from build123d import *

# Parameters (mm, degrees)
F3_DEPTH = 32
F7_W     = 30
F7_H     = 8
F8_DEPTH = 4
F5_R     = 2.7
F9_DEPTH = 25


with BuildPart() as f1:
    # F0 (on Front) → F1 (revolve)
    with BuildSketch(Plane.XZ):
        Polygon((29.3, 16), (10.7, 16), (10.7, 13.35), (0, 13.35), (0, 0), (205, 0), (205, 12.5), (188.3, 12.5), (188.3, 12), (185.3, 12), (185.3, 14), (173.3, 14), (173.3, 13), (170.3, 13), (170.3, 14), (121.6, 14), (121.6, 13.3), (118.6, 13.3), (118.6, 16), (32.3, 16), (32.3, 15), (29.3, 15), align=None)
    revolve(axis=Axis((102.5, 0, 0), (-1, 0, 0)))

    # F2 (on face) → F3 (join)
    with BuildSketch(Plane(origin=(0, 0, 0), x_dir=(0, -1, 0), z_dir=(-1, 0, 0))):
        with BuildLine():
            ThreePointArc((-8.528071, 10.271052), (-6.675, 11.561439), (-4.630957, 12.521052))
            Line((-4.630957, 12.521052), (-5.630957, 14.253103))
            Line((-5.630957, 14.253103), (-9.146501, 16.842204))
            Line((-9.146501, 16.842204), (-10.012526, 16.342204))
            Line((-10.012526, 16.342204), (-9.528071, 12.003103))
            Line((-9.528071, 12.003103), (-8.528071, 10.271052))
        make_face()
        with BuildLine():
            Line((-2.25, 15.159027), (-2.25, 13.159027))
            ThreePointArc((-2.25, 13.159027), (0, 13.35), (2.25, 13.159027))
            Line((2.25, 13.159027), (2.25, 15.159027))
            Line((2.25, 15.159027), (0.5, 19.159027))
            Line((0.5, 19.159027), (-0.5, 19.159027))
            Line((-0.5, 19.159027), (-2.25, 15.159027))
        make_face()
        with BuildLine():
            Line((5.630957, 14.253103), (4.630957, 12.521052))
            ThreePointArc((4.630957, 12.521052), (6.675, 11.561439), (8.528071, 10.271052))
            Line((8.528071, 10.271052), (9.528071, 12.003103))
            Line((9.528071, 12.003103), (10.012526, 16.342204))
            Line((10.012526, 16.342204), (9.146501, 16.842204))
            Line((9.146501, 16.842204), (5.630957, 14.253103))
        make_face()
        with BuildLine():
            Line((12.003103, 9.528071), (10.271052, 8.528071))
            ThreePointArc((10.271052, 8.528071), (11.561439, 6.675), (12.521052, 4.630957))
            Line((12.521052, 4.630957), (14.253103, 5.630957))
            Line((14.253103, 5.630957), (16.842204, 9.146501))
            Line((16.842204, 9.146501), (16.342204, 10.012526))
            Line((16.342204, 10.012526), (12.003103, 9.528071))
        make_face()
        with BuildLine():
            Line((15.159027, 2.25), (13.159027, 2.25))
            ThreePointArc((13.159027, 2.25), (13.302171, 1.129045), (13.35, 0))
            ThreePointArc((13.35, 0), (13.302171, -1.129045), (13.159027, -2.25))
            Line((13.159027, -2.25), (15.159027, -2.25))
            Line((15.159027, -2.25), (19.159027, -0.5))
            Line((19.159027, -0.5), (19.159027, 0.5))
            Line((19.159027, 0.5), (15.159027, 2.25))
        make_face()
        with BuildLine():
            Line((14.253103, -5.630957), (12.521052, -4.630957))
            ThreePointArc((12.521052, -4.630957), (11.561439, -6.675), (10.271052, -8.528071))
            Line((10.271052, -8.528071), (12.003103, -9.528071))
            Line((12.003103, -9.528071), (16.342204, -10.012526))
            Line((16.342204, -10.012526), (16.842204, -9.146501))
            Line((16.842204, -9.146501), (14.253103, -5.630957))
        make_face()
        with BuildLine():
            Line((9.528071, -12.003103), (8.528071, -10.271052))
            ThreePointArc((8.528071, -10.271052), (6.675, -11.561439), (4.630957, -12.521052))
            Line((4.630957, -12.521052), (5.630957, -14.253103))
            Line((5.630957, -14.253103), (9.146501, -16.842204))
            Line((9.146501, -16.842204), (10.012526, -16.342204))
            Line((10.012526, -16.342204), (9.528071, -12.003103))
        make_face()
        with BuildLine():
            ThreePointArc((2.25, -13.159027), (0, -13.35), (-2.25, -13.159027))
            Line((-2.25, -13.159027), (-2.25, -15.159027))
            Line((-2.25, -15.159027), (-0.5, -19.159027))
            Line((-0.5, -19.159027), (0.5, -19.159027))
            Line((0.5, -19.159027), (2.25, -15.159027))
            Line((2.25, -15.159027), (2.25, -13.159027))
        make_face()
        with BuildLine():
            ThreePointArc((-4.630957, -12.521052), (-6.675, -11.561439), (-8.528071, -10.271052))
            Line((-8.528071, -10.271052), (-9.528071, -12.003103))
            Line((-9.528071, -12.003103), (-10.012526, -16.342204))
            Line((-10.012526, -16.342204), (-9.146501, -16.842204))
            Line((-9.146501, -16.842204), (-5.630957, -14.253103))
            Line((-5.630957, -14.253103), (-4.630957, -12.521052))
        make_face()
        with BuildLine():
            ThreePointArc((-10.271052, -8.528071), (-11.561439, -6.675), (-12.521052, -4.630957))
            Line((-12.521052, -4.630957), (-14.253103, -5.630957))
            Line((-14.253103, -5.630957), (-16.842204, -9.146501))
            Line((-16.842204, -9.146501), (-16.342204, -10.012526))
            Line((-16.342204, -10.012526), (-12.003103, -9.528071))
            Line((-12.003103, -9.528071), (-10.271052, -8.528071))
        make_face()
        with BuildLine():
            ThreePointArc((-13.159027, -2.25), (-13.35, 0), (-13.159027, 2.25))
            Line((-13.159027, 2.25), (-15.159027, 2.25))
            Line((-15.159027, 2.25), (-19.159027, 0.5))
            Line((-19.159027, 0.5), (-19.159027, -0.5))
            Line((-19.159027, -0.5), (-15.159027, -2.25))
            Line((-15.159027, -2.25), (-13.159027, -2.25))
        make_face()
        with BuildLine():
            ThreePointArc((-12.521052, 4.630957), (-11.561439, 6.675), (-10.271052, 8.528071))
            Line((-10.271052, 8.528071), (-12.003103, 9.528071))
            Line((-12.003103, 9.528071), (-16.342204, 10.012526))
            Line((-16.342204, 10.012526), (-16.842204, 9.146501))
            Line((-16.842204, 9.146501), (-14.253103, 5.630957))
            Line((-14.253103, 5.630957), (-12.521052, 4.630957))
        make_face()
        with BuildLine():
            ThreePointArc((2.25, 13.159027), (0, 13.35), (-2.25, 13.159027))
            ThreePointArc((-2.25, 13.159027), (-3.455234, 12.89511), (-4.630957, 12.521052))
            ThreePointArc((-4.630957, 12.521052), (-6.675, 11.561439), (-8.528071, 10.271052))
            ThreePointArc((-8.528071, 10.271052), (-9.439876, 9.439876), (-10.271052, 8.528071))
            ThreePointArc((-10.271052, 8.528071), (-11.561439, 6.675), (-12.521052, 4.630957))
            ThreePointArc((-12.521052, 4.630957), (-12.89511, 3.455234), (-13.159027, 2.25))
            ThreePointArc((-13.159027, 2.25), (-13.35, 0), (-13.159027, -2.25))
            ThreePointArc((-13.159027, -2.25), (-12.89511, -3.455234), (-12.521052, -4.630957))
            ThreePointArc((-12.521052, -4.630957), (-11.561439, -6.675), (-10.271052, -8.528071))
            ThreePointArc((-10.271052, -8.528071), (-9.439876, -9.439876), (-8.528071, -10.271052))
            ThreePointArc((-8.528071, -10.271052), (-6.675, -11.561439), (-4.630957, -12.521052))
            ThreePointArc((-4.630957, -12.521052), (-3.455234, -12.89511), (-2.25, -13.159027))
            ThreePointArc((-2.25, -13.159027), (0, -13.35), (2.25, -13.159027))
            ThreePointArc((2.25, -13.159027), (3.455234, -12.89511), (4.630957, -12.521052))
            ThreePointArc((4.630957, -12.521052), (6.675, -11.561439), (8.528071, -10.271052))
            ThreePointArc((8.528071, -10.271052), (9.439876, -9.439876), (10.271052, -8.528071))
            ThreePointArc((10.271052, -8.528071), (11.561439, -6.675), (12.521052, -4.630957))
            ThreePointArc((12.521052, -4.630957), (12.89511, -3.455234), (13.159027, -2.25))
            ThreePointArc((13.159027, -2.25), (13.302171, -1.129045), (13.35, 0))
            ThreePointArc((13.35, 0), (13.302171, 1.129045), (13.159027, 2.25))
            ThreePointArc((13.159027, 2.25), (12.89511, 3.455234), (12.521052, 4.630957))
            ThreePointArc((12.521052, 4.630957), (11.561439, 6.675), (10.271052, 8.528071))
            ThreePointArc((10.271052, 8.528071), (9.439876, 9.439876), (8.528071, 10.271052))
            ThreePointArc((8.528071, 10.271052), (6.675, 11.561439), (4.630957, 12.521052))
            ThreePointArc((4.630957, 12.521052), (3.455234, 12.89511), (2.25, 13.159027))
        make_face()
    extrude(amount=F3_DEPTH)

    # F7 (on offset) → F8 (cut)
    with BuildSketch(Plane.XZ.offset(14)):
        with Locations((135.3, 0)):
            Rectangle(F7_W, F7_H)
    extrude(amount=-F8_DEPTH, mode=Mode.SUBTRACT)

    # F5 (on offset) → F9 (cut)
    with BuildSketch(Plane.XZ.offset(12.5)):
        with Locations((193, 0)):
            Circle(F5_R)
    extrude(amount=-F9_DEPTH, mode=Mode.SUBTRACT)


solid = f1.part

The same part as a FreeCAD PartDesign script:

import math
import FreeCAD as App
import Part
import Sketcher
Q = App.Units.Quantity


def add_polygon(sketch, points):
    """Adds a closed chain of lines whose ends are joined by coincident constraints."""
    first, n = sketch.GeometryCount, len(points)
    for a, b in zip(points, points[1:] + points[:1]):
        sketch.addGeometry(Part.LineSegment(App.Vector(*a, 0), App.Vector(*b, 0)), False)
    for i in range(n):
        sketch.addConstraint(Sketcher.Constraint("Coincident", first + i, 2, first + (i + 1) % n, 1))

doc = App.newDocument("Part")
params = doc.addObject("Spreadsheet::Sheet", "Params")
for row, (alias, value) in enumerate([
    ("sketch1_width", "205 mm"),
    ("sketch1_width2", "3 mm"),
    ("sketch1_width3", "12 mm"),
    ("sketch1_height", "2 mm"),
    ("sketch1_height2", "1 mm"),
    ("revolution_angle", "360 deg"),
    ("sketch2_width", "2 mm"),
    ("sketch2_width2", "1 mm"),
    ("sketch2_length", "2 mm"),
    ("sketch2_length2", "1 mm"),
    ("pad1_length", "32 mm"),
    ("sketch3_width", "30 mm"),
    ("sketch3_height", "8 mm"),
    ("pocket1_length", "4 mm"),
    ("sketch4_diameter", "5.4 mm"),
    ("pocket2_length", "25 mm"),
], start=1):
    params.set(f"A{row}", alias)
    params.set(f"B{row}", "=" + value)
    params.setAlias(f"B{row}", alias)

body = doc.addObject("PartDesign::Body", "Body")

# Sketch on XZ plane
sketch1 = doc.addObject("Sketcher::SketchObject", "Sketch")
body.addObject(sketch1)
sketch1.AttachmentSupport = (doc.XZ_Plane, [""])
sketch1.MapMode = "FlatFace"
add_polygon(sketch1, [(29.3, 16), (10.7, 16), (10.7, 13.3), (0, 13.3), (0, 0), (205, 0), (205, 12.5), (188.3, 12.5), (188.3, 12), (185.3, 12), (185.3, 14), (173.3, 14), (173.3, 13), (170.3, 13), (170.3, 14), (121.6, 14), (121.6, 13.3), (118.6, 13.3), (118.6, 16), (32.3, 16), (32.3, 15), (29.3, 15)])  # lines 0-21
sketch1.addConstraint(Sketcher.Constraint("Horizontal", 0))
sketch1.addConstraint(Sketcher.Constraint("Vertical", 1))
sketch1.addConstraint(Sketcher.Constraint("Horizontal", 2))
sketch1.addConstraint(Sketcher.Constraint("Vertical", 3))
sketch1.addConstraint(Sketcher.Constraint("Horizontal", 4))
sketch1.addConstraint(Sketcher.Constraint("Vertical", 5))
sketch1.addConstraint(Sketcher.Constraint("Horizontal", 6))
sketch1.addConstraint(Sketcher.Constraint("Vertical", 7))
sketch1.addConstraint(Sketcher.Constraint("Horizontal", 8))
sketch1.addConstraint(Sketcher.Constraint("Vertical", 9))
sketch1.addConstraint(Sketcher.Constraint("Horizontal", 10))
sketch1.addConstraint(Sketcher.Constraint("Vertical", 11))
sketch1.addConstraint(Sketcher.Constraint("Horizontal", 12))
sketch1.addConstraint(Sketcher.Constraint("Vertical", 13))
sketch1.addConstraint(Sketcher.Constraint("Horizontal", 14))
sketch1.addConstraint(Sketcher.Constraint("Vertical", 15))
sketch1.addConstraint(Sketcher.Constraint("Horizontal", 16))
sketch1.addConstraint(Sketcher.Constraint("Vertical", 17))
sketch1.addConstraint(Sketcher.Constraint("Horizontal", 18))
sketch1.addConstraint(Sketcher.Constraint("Vertical", 19))
sketch1.addConstraint(Sketcher.Constraint("Horizontal", 20))
sketch1.addConstraint(Sketcher.Constraint("Vertical", 21))
sketch1.addConstraint(Sketcher.Constraint("Coincident", 3, 2, -1, 1))
sketch1.addConstraint(Sketcher.Constraint("Horizontal", 10, 2, 13, 2))
sketch1.addConstraint(Sketcher.Constraint("Horizontal", 0, 2, 17, 2))
sketch1.addConstraint(Sketcher.Constraint("Equal", 8, 12))
sketch1.addConstraint(Sketcher.Constraint("Equal", 12, 16))
sketch1.addConstraint(Sketcher.Constraint("Equal", 16, 20))
sketch1.addConstraint(Sketcher.Constraint("Equal", 13, 19))
sketch1.addConstraint(Sketcher.Constraint("DistanceX", 4, 1, 4, 2, 205.0))
sketch1.addConstraint(Sketcher.Constraint("DistanceX", 8, 2, 8, 1, 3.0))
sketch1.addConstraint(Sketcher.Constraint("DistanceX", 10, 2, 10, 1, 12.0))
sketch1.addConstraint(Sketcher.Constraint("DistanceY", 9, 1, 9, 2, 2.0))
sketch1.addConstraint(Sketcher.Constraint("DistanceY", 11, 2, 11, 1, 1.0))
sketch1.addConstraint(Sketcher.Constraint("DistanceX", 0, 2, 0, 1, 18.6))
sketch1.addConstraint(Sketcher.Constraint("DistanceX", 2, 2, 2, 1, 10.7))
sketch1.addConstraint(Sketcher.Constraint("DistanceX", 6, 2, 6, 1, 16.7))
sketch1.addConstraint(Sketcher.Constraint("DistanceX", 14, 2, 14, 1, 48.7))
sketch1.addConstraint(Sketcher.Constraint("DistanceY", 5, 1, 5, 2, 12.5))
sketch1.addConstraint(Sketcher.Constraint("DistanceY", 7, 2, 7, 1, 0.5))
sketch1.addConstraint(Sketcher.Constraint("DistanceY", 15, 2, 15, 1, 0.7))
sketch1.addConstraint(Sketcher.Constraint("DistanceY", 17, 1, 17, 2, 2.7))
sketch1.addConstraint(Sketcher.Constraint("DistanceY", 1, 2, 1, 1, 2.65))
sketch1.setExpression("Constraints[51]", "Params.sketch1_width")
sketch1.setExpression("Constraints[52]", "Params.sketch1_width2")
sketch1.setExpression("Constraints[53]", "Params.sketch1_width3")
sketch1.setExpression("Constraints[54]", "Params.sketch1_height")
sketch1.setExpression("Constraints[55]", "Params.sketch1_height2")
revolution = doc.addObject("PartDesign::Revolution", "Revolution")
body.addObject(revolution)
revolution.Profile = sketch1
revolution.ReferenceAxis = (sketch1, ["H_Axis"])
revolution.setExpression("Angle", "Params.revolution_angle")

# Sketch on YZ plane
sketch2 = doc.addObject("Sketcher::SketchObject", "Sketch001")
body.addObject(sketch2)
sketch2.AttachmentSupport = (doc.YZ_Plane, [""])
sketch2.MapMode = "FlatFace"
sketch2.addGeometry(Part.LineSegment(App.Vector(4.630957, 12.521052, 0), App.Vector(5.630957, 14.253103, 0)), False)
sketch2.addGeometry(Part.LineSegment(App.Vector(5.630957, 14.253103, 0), App.Vector(9.146501, 16.842204, 0)), False)
sketch2.addGeometry(Part.LineSegment(App.Vector(9.146501, 16.842204, 0), App.Vector(10.012526, 16.342204, 0)), False)
sketch2.addGeometry(Part.LineSegment(App.Vector(10.012526, 16.342204, 0), App.Vector(9.528071, 12.003103, 0)), False)
sketch2.addGeometry(Part.LineSegment(App.Vector(9.528071, 12.003103, 0), App.Vector(8.528071, 10.271052, 0)), False)
sketch2.addGeometry(Part.ArcOfCircle(Part.Circle(App.Vector(0.000084, 0.000084, 0), App.Vector(0, 0, 1), 13.349881), math.radians(39.702856), math.radians(50.297144)), False)
sketch2.addGeometry(Part.LineSegment(App.Vector(10.271052, 8.528071, 0), App.Vector(12.003103, 9.528071, 0)), False)
sketch2.addGeometry(Part.LineSegment(App.Vector(12.003103, 9.528071, 0), App.Vector(16.342204, 10.012526, 0)), False)
sketch2.addGeometry(Part.LineSegment(App.Vector(16.342204, 10.012526, 0), App.Vector(16.842204, 9.146501, 0)), False)
sketch2.addGeometry(Part.LineSegment(App.Vector(16.842204, 9.146501, 0), App.Vector(14.253103, 5.630957, 0)), False)
sketch2.addGeometry(Part.LineSegment(App.Vector(14.253103, 5.630957, 0), App.Vector(12.521052, 4.630957, 0)), False)
sketch2.addGeometry(Part.ArcOfCircle(Part.Circle(App.Vector(0.000043, 0.000015, 0), App.Vector(0, 0, 1), 13.349955), math.radians(9.702873), math.radians(20.297104)), False)
sketch2.addGeometry(Part.LineSegment(App.Vector(13.159027, 2.25, 0), App.Vector(15.159027, 2.25, 0)), False)
sketch2.addGeometry(Part.LineSegment(App.Vector(15.159027, 2.25, 0), App.Vector(19.159027, 0.5, 0)), False)
sketch2.addGeometry(Part.LineSegment(App.Vector(19.159027, 0.5, 0), App.Vector(19.159027, -0.5, 0)), False)
sketch2.addGeometry(Part.LineSegment(App.Vector(19.159027, -0.5, 0), App.Vector(15.159027, -2.25, 0)), False)
sketch2.addGeometry(Part.LineSegment(App.Vector(15.159027, -2.25, 0), App.Vector(13.159027, -2.25, 0)), False)
sketch2.addGeometry(Part.ArcOfCircle(Part.Circle(App.Vector(0.000043, -0.000015, 0), App.Vector(0, 0, 1), 13.349955), math.radians(-20.297104), math.radians(-9.702873)), False)
sketch2.addGeometry(Part.LineSegment(App.Vector(12.521052, -4.630957, 0), App.Vector(14.253103, -5.630957, 0)), False)
sketch2.addGeometry(Part.LineSegment(App.Vector(14.253103, -5.630957, 0), App.Vector(16.842204, -9.146501, 0)), False)
sketch2.addGeometry(Part.LineSegment(App.Vector(16.842204, -9.146501, 0), App.Vector(16.342204, -10.012526, 0)), False)
sketch2.addGeometry(Part.LineSegment(App.Vector(16.342204, -10.012526, 0), App.Vector(12.003103, -9.528071, 0)), False)
sketch2.addGeometry(Part.LineSegment(App.Vector(12.003103, -9.528071, 0), App.Vector(10.271052, -8.528071, 0)), False)
sketch2.addGeometry(Part.ArcOfCircle(Part.Circle(App.Vector(0.000084, -0.000084, 0), App.Vector(0, 0, 1), 13.349881), math.radians(-50.297144), math.radians(-39.702856)), False)
sketch2.addGeometry(Part.LineSegment(App.Vector(8.528071, -10.271052, 0), App.Vector(9.528071, -12.003103, 0)), False)
sketch2.addGeometry(Part.LineSegment(App.Vector(9.528071, -12.003103, 0), App.Vector(10.012526, -16.342204, 0)), False)
sketch2.addGeometry(Part.LineSegment(App.Vector(10.012526, -16.342204, 0), App.Vector(9.146501, -16.842204, 0)), False)
sketch2.addGeometry(Part.LineSegment(App.Vector(9.146501, -16.842204, 0), App.Vector(5.630957, -14.253103, 0)), False)
sketch2.addGeometry(Part.LineSegment(App.Vector(5.630957, -14.253103, 0), App.Vector(4.630957, -12.521052, 0)), False)
sketch2.addGeometry(Part.ArcOfCircle(Part.Circle(App.Vector(0.000015, -0.000043, 0), App.Vector(0, 0, 1), 13.349955), math.radians(-80.297127), math.radians(-69.702896)), False)
sketch2.addGeometry(Part.LineSegment(App.Vector(2.25, -13.159027, 0), App.Vector(2.25, -15.159027, 0)), False)
sketch2.addGeometry(Part.LineSegment(App.Vector(2.25, -15.159027, 0), App.Vector(0.5, -19.159027, 0)), False)
sketch2.addGeometry(Part.LineSegment(App.Vector(0.5, -19.159027, 0), App.Vector(-0.5, -19.159027, 0)), False)
sketch2.addGeometry(Part.LineSegment(App.Vector(-0.5, -19.159027, 0), App.Vector(-2.25, -15.159027, 0)), False)
sketch2.addGeometry(Part.LineSegment(App.Vector(-2.25, -15.159027, 0), App.Vector(-2.25, -13.159027, 0)), False)
sketch2.addGeometry(Part.ArcOfCircle(Part.Circle(App.Vector(-0.000015, -0.000043, 0), App.Vector(0, 0, 1), 13.349955), math.radians(-110.297104), math.radians(-99.702873)), False)
sketch2.addGeometry(Part.LineSegment(App.Vector(-4.630957, -12.521052, 0), App.Vector(-5.630957, -14.253103, 0)), False)
sketch2.addGeometry(Part.LineSegment(App.Vector(-5.630957, -14.253103, 0), App.Vector(-9.146501, -16.842204, 0)), False)
sketch2.addGeometry(Part.LineSegment(App.Vector(-9.146501, -16.842204, 0), App.Vector(-10.012526, -16.342204, 0)), False)
sketch2.addGeometry(Part.LineSegment(App.Vector(-10.012526, -16.342204, 0), App.Vector(-9.528071, -12.003103, 0)), False)
sketch2.addGeometry(Part.LineSegment(App.Vector(-9.528071, -12.003103, 0), App.Vector(-8.528071, -10.271052, 0)), False)
sketch2.addGeometry(Part.ArcOfCircle(Part.Circle(App.Vector(-0.000084, -0.000084, 0), App.Vector(0, 0, 1), 13.349881), math.radians(-140.297144), math.radians(-129.702856)), False)
sketch2.addGeometry(Part.LineSegment(App.Vector(-10.271052, -8.528071, 0), App.Vector(-12.003103, -9.528071, 0)), False)
sketch2.addGeometry(Part.LineSegment(App.Vector(-12.003103, -9.528071, 0), App.Vector(-16.342204, -10.012526, 0)), False)
sketch2.addGeometry(Part.LineSegment(App.Vector(-16.342204, -10.012526, 0), App.Vector(-16.842204, -9.146501, 0)), False)
sketch2.addGeometry(Part.LineSegment(App.Vector(-16.842204, -9.146501, 0), App.Vector(-14.253103, -5.630957, 0)), False)
sketch2.addGeometry(Part.LineSegment(App.Vector(-14.253103, -5.630957, 0), App.Vector(-12.521052, -4.630957, 0)), False)
sketch2.addGeometry(Part.ArcOfCircle(Part.Circle(App.Vector(-0.000043, -0.000015, 0), App.Vector(0, 0, 1), 13.349955), math.radians(-170.297127), math.radians(-159.702896)), False)
sketch2.addGeometry(Part.LineSegment(App.Vector(-13.159027, -2.25, 0), App.Vector(-15.159027, -2.25, 0)), False)
sketch2.addGeometry(Part.LineSegment(App.Vector(-15.159027, -2.25, 0), App.Vector(-19.159027, -0.5, 0)), False)
sketch2.addGeometry(Part.LineSegment(App.Vector(-19.159027, -0.5, 0), App.Vector(-19.159027, 0.5, 0)), False)
sketch2.addGeometry(Part.LineSegment(App.Vector(-19.159027, 0.5, 0), App.Vector(-15.159027, 2.25, 0)), False)
sketch2.addGeometry(Part.LineSegment(App.Vector(-15.159027, 2.25, 0), App.Vector(-13.159027, 2.25, 0)), False)
sketch2.addGeometry(Part.ArcOfCircle(Part.Circle(App.Vector(-0.000043, 0.000015, 0), App.Vector(0, 0, 1), 13.349955), math.radians(159.702896), math.radians(170.297127)), False)
sketch2.addGeometry(Part.LineSegment(App.Vector(-12.521052, 4.630957, 0), App.Vector(-14.253103, 5.630957, 0)), False)
sketch2.addGeometry(Part.LineSegment(App.Vector(-14.253103, 5.630957, 0), App.Vector(-16.842204, 9.146501, 0)), False)
sketch2.addGeometry(Part.LineSegment(App.Vector(-16.842204, 9.146501, 0), App.Vector(-16.342204, 10.012526, 0)), False)
sketch2.addGeometry(Part.LineSegment(App.Vector(-16.342204, 10.012526, 0), App.Vector(-12.003103, 9.528071, 0)), False)
sketch2.addGeometry(Part.LineSegment(App.Vector(-12.003103, 9.528071, 0), App.Vector(-10.271052, 8.528071, 0)), False)
sketch2.addGeometry(Part.ArcOfCircle(Part.Circle(App.Vector(-0.000084, 0.000084, 0), App.Vector(0, 0, 1), 13.349881), math.radians(129.702856), math.radians(140.297144)), False)
sketch2.addGeometry(Part.LineSegment(App.Vector(-8.528071, 10.271052, 0), App.Vector(-9.528071, 12.003103, 0)), False)
sketch2.addGeometry(Part.LineSegment(App.Vector(-9.528071, 12.003103, 0), App.Vector(-10.012526, 16.342204, 0)), False)
sketch2.addGeometry(Part.LineSegment(App.Vector(-10.012526, 16.342204, 0), App.Vector(-9.146501, 16.842204, 0)), False)
sketch2.addGeometry(Part.LineSegment(App.Vector(-9.146501, 16.842204, 0), App.Vector(-5.630957, 14.253103, 0)), False)
sketch2.addGeometry(Part.LineSegment(App.Vector(-5.630957, 14.253103, 0), App.Vector(-4.630957, 12.521052, 0)), False)
sketch2.addGeometry(Part.ArcOfCircle(Part.Circle(App.Vector(-0.000015, 0.000043, 0), App.Vector(0, 0, 1), 13.349955), math.radians(99.702873), math.radians(110.297104)), False)
sketch2.addGeometry(Part.LineSegment(App.Vector(-2.25, 13.159027, 0), App.Vector(-2.25, 15.159027, 0)), False)
sketch2.addGeometry(Part.LineSegment(App.Vector(-2.25, 15.159027, 0), App.Vector(-0.5, 19.159027, 0)), False)
sketch2.addGeometry(Part.LineSegment(App.Vector(-0.5, 19.159027, 0), App.Vector(0.5, 19.159027, 0)), False)
sketch2.addGeometry(Part.LineSegment(App.Vector(0.5, 19.159027, 0), App.Vector(2.25, 15.159027, 0)), False)
sketch2.addGeometry(Part.LineSegment(App.Vector(2.25, 15.159027, 0), App.Vector(2.25, 13.159027, 0)), False)
sketch2.addGeometry(Part.ArcOfCircle(Part.Circle(App.Vector(0.000015, 0.000043, 0), App.Vector(0, 0, 1), 13.349955), math.radians(69.702896), math.radians(80.297127)), False)
sketch2.addConstraint(Sketcher.Constraint("Coincident", 0, 2, 1, 1))
sketch2.addConstraint(Sketcher.Constraint("Coincident", 1, 2, 2, 1))
sketch2.addConstraint(Sketcher.Constraint("Coincident", 2, 2, 3, 1))
sketch2.addConstraint(Sketcher.Constraint("Coincident", 3, 2, 4, 1))
sketch2.addConstraint(Sketcher.Constraint("Coincident", 4, 2, 5, 2))
sketch2.addConstraint(Sketcher.Constraint("Coincident", 5, 1, 6, 1))
sketch2.addConstraint(Sketcher.Constraint("Coincident", 6, 2, 7, 1))
sketch2.addConstraint(Sketcher.Constraint("Coincident", 7, 2, 8, 1))
sketch2.addConstraint(Sketcher.Constraint("Coincident", 8, 2, 9, 1))
sketch2.addConstraint(Sketcher.Constraint("Coincident", 9, 2, 10, 1))
sketch2.addConstraint(Sketcher.Constraint("Coincident", 10, 2, 11, 2))
sketch2.addConstraint(Sketcher.Constraint("Coincident", 11, 1, 12, 1))
sketch2.addConstraint(Sketcher.Constraint("Coincident", 12, 2, 13, 1))
sketch2.addConstraint(Sketcher.Constraint("Coincident", 13, 2, 14, 1))
sketch2.addConstraint(Sketcher.Constraint("Coincident", 14, 2, 15, 1))
sketch2.addConstraint(Sketcher.Constraint("Coincident", 15, 2, 16, 1))
sketch2.addConstraint(Sketcher.Constraint("Coincident", 16, 2, 17, 2))
sketch2.addConstraint(Sketcher.Constraint("Coincident", 17, 1, 18, 1))
sketch2.addConstraint(Sketcher.Constraint("Coincident", 18, 2, 19, 1))
sketch2.addConstraint(Sketcher.Constraint("Coincident", 19, 2, 20, 1))
sketch2.addConstraint(Sketcher.Constraint("Coincident", 20, 2, 21, 1))
sketch2.addConstraint(Sketcher.Constraint("Coincident", 21, 2, 22, 1))
sketch2.addConstraint(Sketcher.Constraint("Coincident", 22, 2, 23, 2))
sketch2.addConstraint(Sketcher.Constraint("Coincident", 23, 1, 24, 1))
sketch2.addConstraint(Sketcher.Constraint("Coincident", 24, 2, 25, 1))
sketch2.addConstraint(Sketcher.Constraint("Coincident", 25, 2, 26, 1))
sketch2.addConstraint(Sketcher.Constraint("Coincident", 26, 2, 27, 1))
sketch2.addConstraint(Sketcher.Constraint("Coincident", 27, 2, 28, 1))
sketch2.addConstraint(Sketcher.Constraint("Coincident", 28, 2, 29, 2))
sketch2.addConstraint(Sketcher.Constraint("Coincident", 29, 1, 30, 1))
sketch2.addConstraint(Sketcher.Constraint("Coincident", 30, 2, 31, 1))
sketch2.addConstraint(Sketcher.Constraint("Coincident", 31, 2, 32, 1))
sketch2.addConstraint(Sketcher.Constraint("Coincident", 32, 2, 33, 1))
sketch2.addConstraint(Sketcher.Constraint("Coincident", 33, 2, 34, 1))
sketch2.addConstraint(Sketcher.Constraint("Coincident", 34, 2, 35, 2))
sketch2.addConstraint(Sketcher.Constraint("Coincident", 35, 1, 36, 1))
sketch2.addConstraint(Sketcher.Constraint("Coincident", 36, 2, 37, 1))
sketch2.addConstraint(Sketcher.Constraint("Coincident", 37, 2, 38, 1))
sketch2.addConstraint(Sketcher.Constraint("Coincident", 38, 2, 39, 1))
sketch2.addConstraint(Sketcher.Constraint("Coincident", 39, 2, 40, 1))
sketch2.addConstraint(Sketcher.Constraint("Coincident", 40, 2, 41, 2))
sketch2.addConstraint(Sketcher.Constraint("Coincident", 41, 1, 42, 1))
sketch2.addConstraint(Sketcher.Constraint("Coincident", 42, 2, 43, 1))
sketch2.addConstraint(Sketcher.Constraint("Coincident", 43, 2, 44, 1))
sketch2.addConstraint(Sketcher.Constraint("Coincident", 44, 2, 45, 1))
sketch2.addConstraint(Sketcher.Constraint("Coincident", 45, 2, 46, 1))
sketch2.addConstraint(Sketcher.Constraint("Coincident", 46, 2, 47, 2))
sketch2.addConstraint(Sketcher.Constraint("Coincident", 47, 1, 48, 1))
sketch2.addConstraint(Sketcher.Constraint("Coincident", 48, 2, 49, 1))
sketch2.addConstraint(Sketcher.Constraint("Coincident", 49, 2, 50, 1))
sketch2.addConstraint(Sketcher.Constraint("Coincident", 50, 2, 51, 1))
sketch2.addConstraint(Sketcher.Constraint("Coincident", 51, 2, 52, 1))
sketch2.addConstraint(Sketcher.Constraint("Coincident", 52, 2, 53, 2))
sketch2.addConstraint(Sketcher.Constraint("Coincident", 53, 1, 54, 1))
sketch2.addConstraint(Sketcher.Constraint("Coincident", 54, 2, 55, 1))
sketch2.addConstraint(Sketcher.Constraint("Coincident", 55, 2, 56, 1))
sketch2.addConstraint(Sketcher.Constraint("Coincident", 56, 2, 57, 1))
sketch2.addConstraint(Sketcher.Constraint("Coincident", 57, 2, 58, 1))
sketch2.addConstraint(Sketcher.Constraint("Coincident", 58, 2, 59, 2))
sketch2.addConstraint(Sketcher.Constraint("Coincident", 59, 1, 60, 1))
sketch2.addConstraint(Sketcher.Constraint("Coincident", 60, 2, 61, 1))
sketch2.addConstraint(Sketcher.Constraint("Coincident", 61, 2, 62, 1))
sketch2.addConstraint(Sketcher.Constraint("Coincident", 62, 2, 63, 1))
sketch2.addConstraint(Sketcher.Constraint("Coincident", 63, 2, 64, 1))
sketch2.addConstraint(Sketcher.Constraint("Coincident", 64, 2, 65, 2))
sketch2.addConstraint(Sketcher.Constraint("Coincident", 65, 1, 66, 1))
sketch2.addConstraint(Sketcher.Constraint("Coincident", 66, 2, 67, 1))
sketch2.addConstraint(Sketcher.Constraint("Coincident", 67, 2, 68, 1))
sketch2.addConstraint(Sketcher.Constraint("Coincident", 68, 2, 69, 1))
sketch2.addConstraint(Sketcher.Constraint("Coincident", 69, 2, 70, 1))
sketch2.addConstraint(Sketcher.Constraint("Coincident", 70, 2, 71, 2))
sketch2.addConstraint(Sketcher.Constraint("Coincident", 71, 1, 0, 1))
sketch2.addConstraint(Sketcher.Constraint("Horizontal", 12))
sketch2.addConstraint(Sketcher.Constraint("Vertical", 14))
sketch2.addConstraint(Sketcher.Constraint("Horizontal", 16))
sketch2.addConstraint(Sketcher.Constraint("Vertical", 30))
sketch2.addConstraint(Sketcher.Constraint("Horizontal", 32))
sketch2.addConstraint(Sketcher.Constraint("Vertical", 34))
sketch2.addConstraint(Sketcher.Constraint("Horizontal", 48))
sketch2.addConstraint(Sketcher.Constraint("Vertical", 50))
sketch2.addConstraint(Sketcher.Constraint("Horizontal", 52))
sketch2.addConstraint(Sketcher.Constraint("Vertical", 66))
sketch2.addConstraint(Sketcher.Constraint("Horizontal", 68))
sketch2.addConstraint(Sketcher.Constraint("Vertical", 70))
sketch2.addConstraint(Sketcher.Constraint("Equal", 11, 17))
sketch2.addConstraint(Sketcher.Constraint("Equal", 5, 23))
sketch2.addConstraint(Sketcher.Constraint("Equal", 17, 29))
sketch2.addConstraint(Sketcher.Constraint("Equal", 29, 35))
sketch2.addConstraint(Sketcher.Constraint("Equal", 23, 41))
sketch2.addConstraint(Sketcher.Constraint("Equal", 35, 47))
sketch2.addConstraint(Sketcher.Constraint("Equal", 47, 53))
sketch2.addConstraint(Sketcher.Constraint("Equal", 41, 59))
sketch2.addConstraint(Sketcher.Constraint("Equal", 53, 65))
sketch2.addConstraint(Sketcher.Constraint("Equal", 65, 71))
sketch2.addConstraint(Sketcher.Constraint("Symmetric", 5, 3, 41, 3, -1, 1))
sketch2.addConstraint(Sketcher.Constraint("Symmetric", 11, 3, 47, 3, -1, 1))
sketch2.addConstraint(Sketcher.Constraint("Symmetric", 17, 3, 53, 3, -1, 1))
sketch2.addConstraint(Sketcher.Constraint("Symmetric", 23, 3, 59, 3, -1, 1))
sketch2.addConstraint(Sketcher.Constraint("Symmetric", 29, 3, 65, 3, -1, 1))
sketch2.addConstraint(Sketcher.Constraint("Symmetric", 35, 3, 71, 3, -1, 1))
sketch2.addConstraint(Sketcher.Constraint("Symmetric", 0, 2, 36, 2, -1, 1))
sketch2.addConstraint(Sketcher.Constraint("Symmetric", 1, 2, 37, 2, -1, 1))
sketch2.addConstraint(Sketcher.Constraint("Symmetric", 2, 2, 38, 2, -1, 1))
sketch2.addConstraint(Sketcher.Constraint("Symmetric", 3, 2, 39, 2, -1, 1))
sketch2.addConstraint(Sketcher.Constraint("Symmetric", 6, 2, 42, 2, -1, 1))
sketch2.addConstraint(Sketcher.Constraint("Symmetric", 7, 2, 43, 2, -1, 1))
sketch2.addConstraint(Sketcher.Constraint("Symmetric", 8, 2, 44, 2, -1, 1))
sketch2.addConstraint(Sketcher.Constraint("Symmetric", 9, 2, 45, 2, -1, 1))
sketch2.addConstraint(Sketcher.Constraint("Symmetric", 12, 2, 48, 2, -1, 1))
sketch2.addConstraint(Sketcher.Constraint("Symmetric", 13, 2, 49, 2, -1, 1))
sketch2.addConstraint(Sketcher.Constraint("Symmetric", 15, 2, 51, 2, -1, 1))
sketch2.addConstraint(Sketcher.Constraint("Symmetric", 18, 2, 54, 2, -1, 1))
sketch2.addConstraint(Sketcher.Constraint("Symmetric", 19, 2, 55, 2, -1, 1))
sketch2.addConstraint(Sketcher.Constraint("Symmetric", 20, 2, 56, 2, -1, 1))
sketch2.addConstraint(Sketcher.Constraint("Symmetric", 21, 2, 57, 2, -1, 1))
sketch2.addConstraint(Sketcher.Constraint("Symmetric", 24, 2, 60, 2, -1, 1))
sketch2.addConstraint(Sketcher.Constraint("Symmetric", 25, 2, 61, 2, -1, 1))
sketch2.addConstraint(Sketcher.Constraint("Symmetric", 26, 2, 62, 2, -1, 1))
sketch2.addConstraint(Sketcher.Constraint("Symmetric", 27, 2, 63, 2, -1, 1))
sketch2.addConstraint(Sketcher.Constraint("Symmetric", 30, 2, 66, 2, -1, 1))
sketch2.addConstraint(Sketcher.Constraint("Symmetric", 31, 2, 67, 2, -1, 1))
sketch2.addConstraint(Sketcher.Constraint("Symmetric", 33, 2, 69, 2, -1, 1))
sketch2.addConstraint(Sketcher.Constraint("Symmetric", 29, 3, 35, 3, -2))
sketch2.addConstraint(Sketcher.Constraint("Symmetric", 23, 3, 41, 3, -2))
sketch2.addConstraint(Sketcher.Constraint("Symmetric", 17, 3, 47, 3, -2))
sketch2.addConstraint(Sketcher.Constraint("Symmetric", 30, 2, 33, 2, -2))
sketch2.addConstraint(Sketcher.Constraint("Symmetric", 27, 2, 36, 2, -2))
sketch2.addConstraint(Sketcher.Constraint("Symmetric", 26, 2, 37, 2, -2))
sketch2.addConstraint(Sketcher.Constraint("Symmetric", 25, 2, 38, 2, -2))
sketch2.addConstraint(Sketcher.Constraint("Symmetric", 24, 2, 39, 2, -2))
sketch2.addConstraint(Sketcher.Constraint("Symmetric", 21, 2, 42, 2, -2))
sketch2.addConstraint(Sketcher.Constraint("Symmetric", 20, 2, 43, 2, -2))
sketch2.addConstraint(Sketcher.Constraint("Symmetric", 19, 2, 44, 2, -2))
sketch2.addConstraint(Sketcher.Constraint("Symmetric", 18, 2, 45, 2, -2))
sketch2.addConstraint(Sketcher.Constraint("Symmetric", 15, 2, 48, 2, -2))
sketch2.addConstraint(Sketcher.Constraint("Perpendicular", 0, 2))
sketch2.addConstraint(Sketcher.Constraint("Perpendicular", 2, 4))
sketch2.addConstraint(Sketcher.Constraint("Perpendicular", 6, 8))
sketch2.addConstraint(Sketcher.Constraint("Perpendicular", 8, 10))
sketch2.addConstraint(Sketcher.Constraint("Perpendicular", 4, 18))
sketch2.addConstraint(Sketcher.Constraint("Perpendicular", 1, 19))
sketch2.addConstraint(Sketcher.Constraint("Perpendicular", 18, 20))
sketch2.addConstraint(Sketcher.Constraint("Perpendicular", 3, 21))
sketch2.addConstraint(Sketcher.Constraint("Perpendicular", 20, 22))
sketch2.addConstraint(Sketcher.Constraint("Perpendicular", 10, 24))
sketch2.addConstraint(Sketcher.Constraint("Perpendicular", 26, 28))
sketch2.addConstraint(Sketcher.Constraint("Perpendicular", 13, 31))
sketch2.addConstraint(Sketcher.Constraint("Perpendicular", 15, 33))
sketch2.addConstraint(Sketcher.Constraint("Perpendicular", 22, 36))
sketch2.addConstraint(Sketcher.Constraint("Perpendicular", 38, 40))
sketch2.addConstraint(Sketcher.Constraint("Perpendicular", 28, 42))
sketch2.addConstraint(Sketcher.Constraint("Perpendicular", 44, 46))
sketch2.addConstraint(Sketcher.Constraint("Perpendicular", 33, 51))
sketch2.addConstraint(Sketcher.Constraint("Perpendicular", 40, 54))
sketch2.addConstraint(Sketcher.Constraint("Perpendicular", 56, 58))
sketch2.addConstraint(Sketcher.Constraint("Perpendicular", 46, 60))
sketch2.addConstraint(Sketcher.Constraint("Perpendicular", 62, 64))
sketch2.addConstraint(Sketcher.Constraint("Perpendicular", 51, 69))
sketch2.addConstraint(Sketcher.Constraint("Horizontal", 14, 2, 49, 2))
sketch2.addConstraint(Sketcher.Constraint("Equal", 68, 14))
sketch2.addConstraint(Sketcher.Constraint("Equal", 52, 30))
sketch2.addConstraint(Sketcher.Constraint("Equal", 1, 3))
sketch2.addConstraint(Sketcher.Constraint("Equal", 0, 4))
sketch2.addConstraint(Sketcher.Constraint("Equal", 4, 6))
sketch2.addConstraint(Sketcher.Constraint("Equal", 3, 7))
sketch2.addConstraint(Sketcher.Constraint("Equal", 2, 8))
sketch2.addConstraint(Sketcher.Constraint("Equal", 7, 9))
sketch2.addConstraint(Sketcher.Constraint("Equal", 6, 10))
sketch2.addConstraint(Sketcher.Constraint("Equal", 9, 13))
sketch2.addConstraint(Sketcher.Constraint("Equal", 27, 31))
sketch2.addConstraint(Sketcher.Constraint("DistanceX", 12, 1, 12, 2, 2.0))
sketch2.addConstraint(Sketcher.Constraint("DistanceX", 32, 2, 32, 1, 1.0))
sketch2.addConstraint(Sketcher.Constraint("Angle", 0, Q("60.000003 deg")))
sketch2.addConstraint(Sketcher.Constraint("Distance", 0, 2.0))
sketch2.addConstraint(Sketcher.Constraint("Distance", 2, 1.0))
sketch2.addConstraint(Sketcher.Constraint("DistanceY", -1, 1, 11, 1, 2.25))
sketch2.addConstraint(Sketcher.Constraint("Radius", 5, 13.349881))
sketch2.addConstraint(Sketcher.Constraint("Radius", 11, 13.349955))
sketch2.addConstraint(Sketcher.Constraint("DistanceX", -1, 1, 1, 2, 9.146501))
sketch2.addConstraint(Sketcher.Constraint("DistanceY", -1, 1, 8, 2, 9.146501))
sketch2.addConstraint(Sketcher.Constraint("Distance", 1, 4.366062))
sketch2.addConstraint(Sketcher.Constraint("DistanceX", -1, 1, 3, 2, 9.528071))
sketch2.addConstraint(Sketcher.Constraint("DistanceY", -1, 1, 4, 2, 10.271052))
sketch2.addConstraint(Sketcher.Constraint("DistanceX", -1, 1, 10, 2, 12.521052))
sketch2.addConstraint(Sketcher.Constraint("DistanceX", -1, 1, 22, 2, 10.271052))
sketch2.addConstraint(Sketcher.Constraint("DistanceX", -1, 1, 11, 1, 13.159027))
sketch2.addConstraint(Sketcher.Constraint("DistanceY", 29, 1, -1, 1, 13.159027))
sketch2.setExpression("Constraints[170]", "Params.sketch2_width")
sketch2.setExpression("Constraints[171]", "Params.sketch2_width2")
sketch2.setExpression("Constraints[173]", "Params.sketch2_length")
sketch2.setExpression("Constraints[174]", "Params.sketch2_length2")
pad1 = doc.addObject("PartDesign::Pad", "Pad")
body.addObject(pad1)
pad1.Profile = sketch2
pad1.setExpression("Length", "Params.pad1_length")
pad1.Reversed = True

# Sketch on XZ plane
sketch3 = doc.addObject("Sketcher::SketchObject", "Sketch002")
body.addObject(sketch3)
sketch3.AttachmentSupport = (doc.XZ_Plane, [""])
sketch3.MapMode = "FlatFace"
sketch3.AttachmentOffset = App.Placement(App.Vector(0, 0, 14), App.Rotation())
add_polygon(sketch3, [(120, 4), (120, -4), (150, -4), (150, 4)])  # lines 0-3
sketch3.addConstraint(Sketcher.Constraint("Vertical", 0))
sketch3.addConstraint(Sketcher.Constraint("Horizontal", 1))
sketch3.addConstraint(Sketcher.Constraint("Vertical", 2))
sketch3.addConstraint(Sketcher.Constraint("Horizontal", 3))
sketch3.addConstraint(Sketcher.Constraint("DistanceX", 1, 1, 1, 2, 30.0))
sketch3.addConstraint(Sketcher.Constraint("DistanceY", 0, 2, 0, 1, 8.0))
sketch3.addConstraint(Sketcher.Constraint("DistanceY", 0, 2, -1, 1, 4.0))
sketch3.addConstraint(Sketcher.Constraint("DistanceX", -1, 1, 0, 2, 120.3))
sketch3.setExpression("Constraints[8]", "Params.sketch3_width")
sketch3.setExpression("Constraints[9]", "Params.sketch3_height")
pocket1 = doc.addObject("PartDesign::Pocket", "Pocket")
body.addObject(pocket1)
pocket1.Profile = sketch3
pocket1.setExpression("Length", "Params.pocket1_length")

# Sketch on XZ plane
sketch4 = doc.addObject("Sketcher::SketchObject", "Sketch003")
body.addObject(sketch4)
sketch4.AttachmentSupport = (doc.XZ_Plane, [""])
sketch4.MapMode = "FlatFace"
sketch4.AttachmentOffset = App.Placement(App.Vector(0, 0, 12.5), App.Rotation())
sketch4.addGeometry(Part.Circle(App.Vector(193, 0, 0), App.Vector(0, 0, 1), 2.7), False)
sketch4.addConstraint(Sketcher.Constraint("PointOnObject", 0, 3, -1))
sketch4.addConstraint(Sketcher.Constraint("Diameter", 0, 5.4))
sketch4.addConstraint(Sketcher.Constraint("DistanceX", -1, 1, 0, 3, 193.0))
sketch4.setExpression("Constraints[1]", "Params.sketch4_diameter")
pocket2 = doc.addObject("PartDesign::Pocket", "Pocket001")
body.addObject(pocket2)
pocket2.Profile = sketch4
pocket2.setExpression("Length", "Params.pocket2_length")

doc.recompute()
